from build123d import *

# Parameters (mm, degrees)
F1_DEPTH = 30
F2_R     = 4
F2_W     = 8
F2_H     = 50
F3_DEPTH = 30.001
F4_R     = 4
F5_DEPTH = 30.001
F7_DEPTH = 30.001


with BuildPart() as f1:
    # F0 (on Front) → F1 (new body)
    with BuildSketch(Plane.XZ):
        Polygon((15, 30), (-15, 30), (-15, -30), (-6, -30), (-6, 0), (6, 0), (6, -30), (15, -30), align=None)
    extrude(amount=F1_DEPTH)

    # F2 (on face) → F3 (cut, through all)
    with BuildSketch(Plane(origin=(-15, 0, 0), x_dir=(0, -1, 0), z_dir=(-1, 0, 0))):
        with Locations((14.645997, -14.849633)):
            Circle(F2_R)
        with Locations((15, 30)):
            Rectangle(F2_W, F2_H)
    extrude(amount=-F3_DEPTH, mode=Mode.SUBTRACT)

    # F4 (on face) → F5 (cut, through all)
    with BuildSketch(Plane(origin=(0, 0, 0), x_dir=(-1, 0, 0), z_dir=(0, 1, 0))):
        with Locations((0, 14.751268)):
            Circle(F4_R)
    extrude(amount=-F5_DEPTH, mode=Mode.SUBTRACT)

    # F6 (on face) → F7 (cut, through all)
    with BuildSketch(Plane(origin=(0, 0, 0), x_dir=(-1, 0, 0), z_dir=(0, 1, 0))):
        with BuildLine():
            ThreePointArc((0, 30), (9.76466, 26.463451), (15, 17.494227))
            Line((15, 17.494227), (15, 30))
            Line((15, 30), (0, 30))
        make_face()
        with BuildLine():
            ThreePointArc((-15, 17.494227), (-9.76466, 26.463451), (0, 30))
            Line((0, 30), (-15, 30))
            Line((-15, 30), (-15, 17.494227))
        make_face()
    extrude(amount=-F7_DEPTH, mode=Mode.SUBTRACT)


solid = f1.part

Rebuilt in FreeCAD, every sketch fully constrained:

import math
import FreeCAD as App
import Part
import Sketcher
Q = App.Units.Quantity

doc = App.newDocument("Part")
params = doc.addObject("Spreadsheet::Sheet", "Params")
for row, (alias, value) in enumerate([
    ("sketch1_width", "30 mm"),
    ("sketch1_width2", "9 mm"),
    ("pad1_length", "30 mm"),
    ("sketch2_diameter", "8 mm"),
    ("sketch2_width", "8 mm"),
    ("sketch2_height", "50 mm"),
    ("sketch3_diameter", "8 mm"),
    ("sketch4_width", "15 mm"),
], start=1):
    params.set(f"A{row}", alias)
    params.set(f"B{row}", "=" + value)
    params.setAlias(f"B{row}", alias)

body = doc.addObject("PartDesign::Body", "Body")

# Sketch on XZ plane
sketch1 = doc.addObject("Sketcher::SketchObject", "Sketch")
body.addObject(sketch1)
sketch1.AttachmentSupport = (doc.XZ_Plane, [""])
sketch1.MapMode = "FlatFace"
sketch1.addGeometry(Part.LineSegment(App.Vector(15, 30, 0), App.Vector(-15, 30, 0)), False)
sketch1.addGeometry(Part.LineSegment(App.Vector(-15, 30, 0), App.Vector(-15, -30, 0)), False)
sketch1.addGeometry(Part.LineSegment(App.Vector(-15, -30, 0), App.Vector(-6, -30, 0)), False)
sketch1.addGeometry(Part.LineSegment(App.Vector(-6, -30, 0), App.Vector(-6, 0, 0)), False)
sketch1.addGeometry(Part.LineSegment(App.Vector(-6, 0, 0), App.Vector(6, 0, 0)), False)
sketch1.addGeometry(Part.LineSegment(App.Vector(6, 0, 0), App.Vector(6, -30, 0)), False)
sketch1.addGeometry(Part.LineSegment(App.Vector(6, -30, 0), App.Vector(15, -30, 0)), False)
sketch1.addGeometry(Part.LineSegment(App.Vector(15, -30, 0), App.Vector(15, 30, 0)), False)
sketch1.addConstraint(Sketcher.Constraint("Coincident", 0, 2, 1, 1))
sketch1.addConstraint(Sketcher.Constraint("Coincident", 1, 2, 2, 1))
sketch1.addConstraint(Sketcher.Constraint("Coincident", 2, 2, 3, 1))
sketch1.addConstraint(Sketcher.Constraint("Coincident", 3, 2, 4, 1))
sketch1.addConstraint(Sketcher.Constraint("Coincident", 4, 2, 5, 1))
sketch1.addConstraint(Sketcher.Constraint("Coincident", 5, 2, 6, 1))
sketch1.addConstraint(Sketcher.Constraint("Coincident", 6, 2, 7, 1))
sketch1.addConstraint(Sketcher.Constraint("Coincident", 7, 2, 0, 1))
sketch1.addConstraint(Sketcher.Constraint("Horizontal", 0))
sketch1.addConstraint(Sketcher.Constraint("Vertical", 1))
sketch1.addConstraint(Sketcher.Constraint("Horizontal", 2))
sketch1.addConstraint(Sketcher.Constraint("Vertical", 3))
sketch1.addConstraint(Sketcher.Constraint("Horizontal", 4))
sketch1.addConstraint(Sketcher.Constraint("Vertical", 5))
sketch1.addConstraint(Sketcher.Constraint("Horizontal", 6))
sketch1.addConstraint(Sketcher.Constraint("Vertical", 7))
sketch1.addConstraint(Sketcher.Constraint("Symmetric", 3, 2, 4, 2, -1, 1))
sketch1.addConstraint(Sketcher.Constraint("Symmetric", 0, 2, 6, 2, -1, 1))
sketch1.addConstraint(Sketcher.Constraint("Horizontal", 2, 2, 5, 2))
sketch1.addConstraint(Sketcher.Constraint("Equal", 0, 3))
sketch1.addConstraint(Sketcher.Constraint("DistanceX", 0, 2, 0, 1, Q("30 mm")))
sketch1.addConstraint(Sketcher.Constraint("DistanceX", 2, 1, 2, 2, Q("9 mm")))
sketch1.setExpression("Constraints[20]", "Params.sketch1_width")
sketch1.setExpression("Constraints[21]", "Params.sketch1_width2")
pad1 = doc.addObject("PartDesign::Pad", "Pad")
body.addObject(pad1)
pad1.Profile = sketch1
pad1.setExpression("Length", "Params.pad1_length")

# Sketch on YZ plane
sketch2 = doc.addObject("Sketcher::SketchObject", "Sketch001")
body.addObject(sketch2)
sketch2.AttachmentSupport = (doc.YZ_Plane, [""])
sketch2.MapMode = "FlatFace"
sketch2.AttachmentOffset = App.Placement(App.Vector(0, 0, -15), App.Rotation())
sketch2.addGeometry(Part.Circle(App.Vector(-14.6, -14.8, 0), App.Vector(0, 0, 1), 4), False)
sketch2.addGeometry(Part.LineSegment(App.Vector(-11, 55, 0), App.Vector(-11, 5, 0)), False)
sketch2.addGeometry(Part.LineSegment(App.Vector(-11, 5, 0), App.Vector(-19, 5, 0)), False)
sketch2.addGeometry(Part.LineSegment(App.Vector(-19, 5, 0), App.Vector(-19, 55, 0)), False)
sketch2.addGeometry(Part.LineSegment(App.Vector(-19, 55, 0), App.Vector(-11, 55, 0)), False)
sketch2.addConstraint(Sketcher.Constraint("Coincident", 1, 2, 2, 1))
sketch2.addConstraint(Sketcher.Constraint("Coincident", 2, 2, 3, 1))
sketch2.addConstraint(Sketcher.Constraint("Coincident", 3, 2, 4, 1))
sketch2.addConstraint(Sketcher.Constraint("Coincident", 4, 2, 1, 1))
sketch2.addConstraint(Sketcher.Constraint("Vertical", 1))
sketch2.addConstraint(Sketcher.Constraint("Horizontal", 2))
sketch2.addConstraint(Sketcher.Constraint("Vertical", 3))
sketch2.addConstraint(Sketcher.Constraint("Horizontal", 4))
sketch2.addConstraint(Sketcher.Constraint("Diameter", 0, Q("8 mm")))
sketch2.addConstraint(Sketcher.Constraint("DistanceX", 2, 2, 2, 1, Q("8 mm")))
sketch2.addConstraint(Sketcher.Constraint("DistanceY", 1, 2, 1, 1, Q("50 mm")))
sketch2.addConstraint(Sketcher.Constraint("DistanceX", 1, 2, -1, 1, Q("11 mm")))
sketch2.addConstraint(Sketcher.Constraint("DistanceY", -1, 1, 1, 2, Q("5 mm")))
sketch2.addConstraint(Sketcher.Constraint("DistanceX", 0, 3, -1, 1, Q("14.645997 mm")))
sketch2.addConstraint(Sketcher.Constraint("DistanceY", 0, 3, -1, 1, Q("14.849633 mm")))
sketch2.setExpression("Constraints[8]", "Params.sketch2_diameter")
sketch2.setExpression("Constraints[9]", "Params.sketch2_width")
sketch2.setExpression("Constraints[10]", "Params.sketch2_height")
pocket1 = doc.addObject("PartDesign::Pocket", "Pocket")
body.addObject(pocket1)
pocket1.Profile = sketch2
pocket1.Type = "ThroughAll"
pocket1.Reversed = True

# Sketch on XZ plane
sketch3 = doc.addObject("Sketcher::SketchObject", "Sketch002")
body.addObject(sketch3)
sketch3.AttachmentSupport = (doc.XZ_Plane, [""])
sketch3.MapMode = "FlatFace"
sketch3.addGeometry(Part.Circle(App.Vector(0, 14.8, 0), App.Vector(0, 0, 1), 4), False)
sketch3.addConstraint(Sketcher.Constraint("PointOnObject", 0, 3, -2))
sketch3.addConstraint(Sketcher.Constraint("Diameter", 0, Q("8 mm")))
sketch3.addConstraint(Sketcher.Constraint("DistanceY", -1, 1, 0, 3, Q("14.751268 mm")))
sketch3.setExpression("Constraints[1]", "Params.sketch3_diameter")
pocket2 = doc.addObject("PartDesign::Pocket", "Pocket001")
body.addObject(pocket2)
pocket2.Profile = sketch3
pocket2.Type = "ThroughAll"
pocket2.Reversed = True

# Sketch on XZ plane
sketch4 = doc.addObject("Sketcher::SketchObject", "Sketch003")
body.addObject(sketch4)
sketch4.AttachmentSupport = (doc.XZ_Plane, [""])
sketch4.MapMode = "FlatFace"
sketch4.addGeometry(Part.ArcOfCircle(Part.Circle(App.Vector(0, 15, 0), App.Vector(0, 0, 1), 15), math.radians(90), math.radians(170)), False)
sketch4.addGeometry(Part.LineSegment(App.Vector(-15, 17, 0), App.Vector(-15, 30, 0)), False)
sketch4.addGeometry(Part.LineSegment(App.Vector(-15, 30, 0), App.Vector(0, 30, 0)), False)
sketch4.addGeometry(Part.ArcOfCircle(Part.Circle(App.Vector(0, 15, 0), App.Vector(0, 0, 1), 15), math.radians(10), math.radians(90)), False)
sketch4.addGeometry(Part.LineSegment(App.Vector(0, 30, 0), App.Vector(15, 30, 0)), False)
sketch4.addGeometry(Part.LineSegment(App.Vector(15, 30, 0), App.Vector(15, 17, 0)), False)
sketch4.addConstraint(Sketcher.Constraint("Coincident", 0, 2, 1, 1))
sketch4.addConstraint(Sketcher.Constraint("Coincident", 1, 2, 2, 1))
sketch4.addConstraint(Sketcher.Constraint("Tangent", 2, 2, 0, 1))
sketch4.addConstraint(Sketcher.Constraint("Tangent", 3, 2, 4, 1))
sketch4.addConstraint(Sketcher.Constraint("Coincident", 4, 2, 5, 1))
sketch4.addConstraint(Sketcher.Constraint("Coincident", 5, 2, 3, 1))
sketch4.addConstraint(Sketcher.Constraint("Vertical", 1))
sketch4.addConstraint(Sketcher.Constraint("Horizontal", 2))
sketch4.addConstraint(Sketcher.Constraint("Horizontal", 4))
sketch4.addConstraint(Sketcher.Constraint("Vertical", 5))
sketch4.addConstraint(Sketcher.Constraint("Coincident", 3, 3, 0, 3))
sketch4.addConstraint(Sketcher.Constraint("Equal", 0, 3))
sketch4.addConstraint(Sketcher.Constraint("Symmetric", 0, 2, 5, 2, -2))
sketch4.addConstraint(Sketcher.Constraint("DistanceX", 2, 1, 2, 2, Q("15 mm")))
sketch4.addConstraint(Sketcher.Constraint("DistanceY", -1, 1, 1, 2, Q("30 mm")))
sketch4.addConstraint(Sketcher.Constraint("Radius", 0, Q("15.248733 mm")))
sketch4.setExpression("Constraints[13]", "Params.sketch4_width")
pocket3 = doc.addObject("PartDesign::Pocket", "Pocket002")
body.addObject(pocket3)
pocket3.Profile = sketch4
pocket3.Type = "ThroughAll"
pocket3.Reversed = True

doc.recompute()
